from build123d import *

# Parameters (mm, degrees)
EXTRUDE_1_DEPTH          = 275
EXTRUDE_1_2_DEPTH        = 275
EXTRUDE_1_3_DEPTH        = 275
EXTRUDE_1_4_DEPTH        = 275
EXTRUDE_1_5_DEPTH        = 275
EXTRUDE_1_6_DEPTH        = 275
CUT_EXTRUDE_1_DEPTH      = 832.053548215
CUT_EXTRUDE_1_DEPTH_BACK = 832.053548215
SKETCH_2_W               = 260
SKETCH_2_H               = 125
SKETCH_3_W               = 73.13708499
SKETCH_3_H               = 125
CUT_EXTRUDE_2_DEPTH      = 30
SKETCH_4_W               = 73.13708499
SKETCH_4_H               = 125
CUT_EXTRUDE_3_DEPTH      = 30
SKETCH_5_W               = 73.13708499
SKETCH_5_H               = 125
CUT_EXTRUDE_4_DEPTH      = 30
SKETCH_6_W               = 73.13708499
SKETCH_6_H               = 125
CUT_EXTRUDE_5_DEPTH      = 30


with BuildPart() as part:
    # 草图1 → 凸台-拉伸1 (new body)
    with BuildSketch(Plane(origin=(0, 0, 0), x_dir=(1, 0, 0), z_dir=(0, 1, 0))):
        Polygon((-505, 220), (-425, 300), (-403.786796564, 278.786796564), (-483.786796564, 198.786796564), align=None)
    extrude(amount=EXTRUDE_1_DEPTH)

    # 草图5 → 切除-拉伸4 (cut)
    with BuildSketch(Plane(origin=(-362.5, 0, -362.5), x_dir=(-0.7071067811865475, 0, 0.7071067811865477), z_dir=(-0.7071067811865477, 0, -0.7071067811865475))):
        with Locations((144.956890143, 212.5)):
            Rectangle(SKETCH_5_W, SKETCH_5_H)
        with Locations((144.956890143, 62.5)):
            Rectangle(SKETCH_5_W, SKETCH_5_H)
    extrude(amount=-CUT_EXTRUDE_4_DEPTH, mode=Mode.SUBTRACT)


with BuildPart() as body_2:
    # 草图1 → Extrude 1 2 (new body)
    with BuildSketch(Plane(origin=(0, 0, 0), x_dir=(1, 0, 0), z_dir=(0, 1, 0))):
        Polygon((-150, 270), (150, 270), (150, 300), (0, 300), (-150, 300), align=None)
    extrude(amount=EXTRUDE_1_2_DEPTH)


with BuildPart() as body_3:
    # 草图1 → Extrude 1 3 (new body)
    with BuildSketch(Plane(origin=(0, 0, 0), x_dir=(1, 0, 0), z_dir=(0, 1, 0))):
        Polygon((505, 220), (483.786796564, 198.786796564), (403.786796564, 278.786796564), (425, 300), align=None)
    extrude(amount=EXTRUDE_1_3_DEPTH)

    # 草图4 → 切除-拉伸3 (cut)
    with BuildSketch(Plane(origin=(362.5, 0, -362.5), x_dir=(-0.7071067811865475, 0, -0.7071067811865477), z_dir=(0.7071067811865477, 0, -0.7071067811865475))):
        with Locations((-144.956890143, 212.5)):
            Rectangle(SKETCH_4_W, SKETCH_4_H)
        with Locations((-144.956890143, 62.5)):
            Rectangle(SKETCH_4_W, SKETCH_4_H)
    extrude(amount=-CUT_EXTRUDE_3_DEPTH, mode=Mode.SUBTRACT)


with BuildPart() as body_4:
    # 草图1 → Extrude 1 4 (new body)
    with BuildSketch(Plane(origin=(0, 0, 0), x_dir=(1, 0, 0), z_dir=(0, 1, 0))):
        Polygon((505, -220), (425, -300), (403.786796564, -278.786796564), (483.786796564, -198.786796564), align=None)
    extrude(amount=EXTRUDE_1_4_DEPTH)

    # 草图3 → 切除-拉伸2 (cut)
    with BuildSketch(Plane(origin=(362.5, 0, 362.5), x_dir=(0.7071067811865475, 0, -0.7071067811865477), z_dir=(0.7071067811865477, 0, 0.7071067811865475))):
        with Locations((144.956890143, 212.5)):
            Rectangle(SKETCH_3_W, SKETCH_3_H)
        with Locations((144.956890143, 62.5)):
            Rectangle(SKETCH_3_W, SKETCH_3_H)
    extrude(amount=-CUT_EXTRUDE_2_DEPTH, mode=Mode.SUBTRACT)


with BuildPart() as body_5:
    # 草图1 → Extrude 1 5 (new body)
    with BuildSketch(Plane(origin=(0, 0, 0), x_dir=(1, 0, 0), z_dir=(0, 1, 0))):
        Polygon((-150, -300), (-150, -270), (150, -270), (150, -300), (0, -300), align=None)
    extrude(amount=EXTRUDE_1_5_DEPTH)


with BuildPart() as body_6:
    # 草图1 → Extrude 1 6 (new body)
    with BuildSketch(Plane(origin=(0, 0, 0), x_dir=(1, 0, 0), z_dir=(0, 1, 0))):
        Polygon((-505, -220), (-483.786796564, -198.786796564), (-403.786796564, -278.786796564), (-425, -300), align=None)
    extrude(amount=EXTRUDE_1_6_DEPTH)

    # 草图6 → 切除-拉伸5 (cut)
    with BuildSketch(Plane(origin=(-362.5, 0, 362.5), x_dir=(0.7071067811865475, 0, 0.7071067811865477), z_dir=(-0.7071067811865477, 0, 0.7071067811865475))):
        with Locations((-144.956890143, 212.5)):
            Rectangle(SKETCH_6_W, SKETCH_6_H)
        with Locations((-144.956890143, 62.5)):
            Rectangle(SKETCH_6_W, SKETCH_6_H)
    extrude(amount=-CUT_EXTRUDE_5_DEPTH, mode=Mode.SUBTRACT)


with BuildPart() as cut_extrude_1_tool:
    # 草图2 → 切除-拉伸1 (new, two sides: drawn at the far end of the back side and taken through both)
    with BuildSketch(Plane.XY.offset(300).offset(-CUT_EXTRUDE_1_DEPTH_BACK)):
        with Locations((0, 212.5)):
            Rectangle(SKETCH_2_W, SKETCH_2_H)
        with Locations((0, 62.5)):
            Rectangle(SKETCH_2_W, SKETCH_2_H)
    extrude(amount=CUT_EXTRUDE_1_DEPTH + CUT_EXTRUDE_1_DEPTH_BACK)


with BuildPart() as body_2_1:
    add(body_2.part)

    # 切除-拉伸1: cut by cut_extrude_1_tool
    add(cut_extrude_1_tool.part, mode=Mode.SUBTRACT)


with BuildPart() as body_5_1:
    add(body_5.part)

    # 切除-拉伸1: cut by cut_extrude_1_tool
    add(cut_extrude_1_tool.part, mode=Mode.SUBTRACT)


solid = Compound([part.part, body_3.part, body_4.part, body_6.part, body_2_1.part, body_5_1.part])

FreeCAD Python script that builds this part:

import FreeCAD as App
import Part
import Sketcher

V = App.Vector
Q = App.Units.Quantity

doc = App.newDocument("Part")
params = doc.addObject("Spreadsheet::Sheet", "Params")
for row, (alias, value) in enumerate([
    ("sketch1_length", "30 mm"),
    ("pad1_length", "275 mm"),
    ("sketch2_height", "125 mm"),
    ("pocket1_length", "30 mm"),
    ("sketch3_width", "300 mm"),
    ("sketch3_height", "30 mm"),
    ("pad2_length", "275 mm"),
    ("sketch4_length", "30 mm"),
    ("pad3_length", "275 mm"),
    ("sketch5_height", "125 mm"),
    ("pocket2_length", "30 mm"),
    ("sketch6_length", "30 mm"),
    ("pad4_length", "275 mm"),
    ("sketch7_height", "125 mm"),
    ("pocket3_length", "30 mm"),
    ("sketch8_width", "300 mm"),
    ("sketch8_height", "30 mm"),
    ("pad5_length", "275 mm"),
    ("sketch9_length", "30 mm"),
    ("pad6_length", "275 mm"),
    ("sketch10_height", "125 mm"),
    ("pocket4_length", "30 mm"),
    ("sketch11_width", "260 mm"),
    ("sketch11_height", "125 mm"),
    ("pad7_length", "832.053548 mm"),
    ("pad7_length2", "832.053548 mm"),
], start=1):
    params.set(f"A{row}", alias)
    params.set(f"B{row}", "=" + value)
    params.setAlias(f"B{row}", alias)

body = doc.addObject("PartDesign::Body", "Body")

# Sketch on XZ plane
sketch1 = doc.addObject("Sketcher::SketchObject", "Sketch")
body.addObject(sketch1)
sketch1.AttachmentSupport = (doc.XZ_Plane, [""])
sketch1.MapMode = "FlatFace"
sketch1.addGeometry([
    Part.LineSegment(V(-425, -300, 0), V(-505, -220, 0)),
    Part.LineSegment(V(-505, -220, 0), V(-484, -199, 0)),
    Part.LineSegment(V(-484, -199, 0), V(-404, -279, 0)),
    Part.LineSegment(V(-404, -279, 0), V(-425, -300, 0)),
], False)
sketch1.addConstraint([
    Sketcher.Constraint("Coincident", 0, 2, 1, 1),
    Sketcher.Constraint("Coincident", 1, 2, 2, 1),
    Sketcher.Constraint("Coincident", 2, 2, 3, 1),
    Sketcher.Constraint("Coincident", 3, 2, 0, 1),
    Sketcher.Constraint("Perpendicular", 0, 1),
    Sketcher.Constraint("Perpendicular", 1, 2),
    Sketcher.Constraint("Perpendicular", 2, 3),
    Sketcher.Constraint("Angle", 0, Q("135 deg")),
    Sketcher.Constraint("Distance", 1, 30.0),
    Sketcher.Constraint("DistanceX", 0, 2, -1, 1, 505.0),
    Sketcher.Constraint("DistanceY", 0, 2, -1, 1, 220.0),
    Sketcher.Constraint("DistanceX", 3, 2, -1, 1, 425.0),
])
sketch1.setExpression("Constraints[8]", "Params.sketch1_length")
pad1 = doc.addObject("PartDesign::Pad", "Pad")
body.addObject(pad1)
pad1.Profile = sketch1
pad1.setExpression("Length", "Params.pad1_length")
pad1.Reversed = True

# Sketch on an angled plane
sketch2 = doc.addObject("Sketcher::SketchObject", "Sketch001")
body.addObject(sketch2)
sketch2.Placement = App.Placement(V(-362.5, 0, -362.5), App.Rotation(V(-0.707106781, 0, 0.707106781), V(0, 0.999999999, 0), V(-0.707106781, 0, -0.707106781), "ZXY"))
sketch2.addGeometry([
    Part.LineSegment(V(108, 275, 0), V(108, 150, 0)),  # 0
    Part.LineSegment(V(108, 150, 0), V(182, 150, 0)),  # 1
    Part.LineSegment(V(182, 150, 0), V(182, 275, 0)),  # 2
    Part.LineSegment(V(182, 275, 0), V(108, 275, 0)),  # 3
    Part.LineSegment(V(108, 125, 0), V(108, 0, 0)),  # 4
    Part.LineSegment(V(108, 0, 0), V(182, 0, 0)),  # 5
    Part.LineSegment(V(182, 0, 0), V(182, 125, 0)),  # 6
    Part.LineSegment(V(182, 125, 0), V(108, 125, 0)),  # 7
], False)
sketch2.addConstraint([
    Sketcher.Constraint("Coincident", 0, 2, 1, 1),
    Sketcher.Constraint("Coincident", 1, 2, 2, 1),
    Sketcher.Constraint("Coincident", 2, 2, 3, 1),
    Sketcher.Constraint("Coincident", 3, 2, 0, 1),
    Sketcher.Constraint("Coincident", 4, 2, 5, 1),
    Sketcher.Constraint("Coincident", 5, 2, 6, 1),
    Sketcher.Constraint("Coincident", 6, 2, 7, 1),
    Sketcher.Constraint("Coincident", 7, 2, 4, 1),
    Sketcher.Constraint("Vertical", 0),
    Sketcher.Constraint("Horizontal", 1),
    Sketcher.Constraint("Vertical", 2),
    Sketcher.Constraint("Horizontal", 3),
    Sketcher.Constraint("Vertical", 4),
    Sketcher.Constraint("Horizontal", 5),
    Sketcher.Constraint("Vertical", 6),
    Sketcher.Constraint("Horizontal", 7),
    Sketcher.Constraint("PointOnObject", 4, 2, -1),
    Sketcher.Constraint("Vertical", 3, 2, 4, 2),
    Sketcher.Constraint("Vertical", 2, 2, 5, 2),
    Sketcher.Constraint("Equal", 2, 4),
    Sketcher.Constraint("DistanceY", 0, 2, 0, 1, 125.0),
    Sketcher.Constraint("DistanceY", -1, 1, 0, 2, 150.0),
    Sketcher.Constraint("DistanceX", 1, 1, 1, 2, 73.137085),
    Sketcher.Constraint("DistanceX", -1, 1, 0, 2, 108.388348),
])
sketch2.setExpression("Constraints[20]", "Params.sketch2_height")
pocket1 = doc.addObject("PartDesign::Pocket", "Pocket")
body.addObject(pocket1)
pocket1.Profile = sketch2
pocket1.setExpression("Length", "Params.pocket1_length")
body2 = doc.addObject("PartDesign::Body", "Body001")

# Sketch on XZ plane
sketch3 = doc.addObject("Sketcher::SketchObject", "Sketch002")
body2.addObject(sketch3)
sketch3.AttachmentSupport = (doc.getObject("XZ_Plane001"), [""])
sketch3.MapMode = "FlatFace"
sketch3.addGeometry([
    Part.LineSegment(V(-150, -270, 0), V(150, -270, 0)),
    Part.LineSegment(V(150, -270, 0), V(150, -300, 0)),
    Part.LineSegment(V(150, -300, 0), V(-150, -300, 0)),
    Part.LineSegment(V(-150, -300, 0), V(-150, -270, 0)),
], False)
sketch3.addConstraint([
    Sketcher.Constraint("Coincident", 0, 2, 1, 1),
    Sketcher.Constraint("Coincident", 1, 2, 2, 1),
    Sketcher.Constraint("Coincident", 2, 2, 3, 1),
    Sketcher.Constraint("Coincident", 3, 2, 0, 1),
    Sketcher.Constraint("Horizontal", 0),
    Sketcher.Constraint("Vertical", 1),
    Sketcher.Constraint("Horizontal", 2),
    Sketcher.Constraint("Vertical", 3),
    Sketcher.Constraint("DistanceX", 0, 1, 0, 2, 300.0),
    Sketcher.Constraint("DistanceY", 1, 2, 1, 1, 30.0),
    Sketcher.Constraint("DistanceX", -1, 1, 0, 2, 150.0),
    Sketcher.Constraint("DistanceY", 0, 2, -1, 1, 270.0),
])
sketch3.setExpression("Constraints[8]", "Params.sketch3_width")
sketch3.setExpression("Constraints[9]", "Params.sketch3_height")
pad2 = doc.addObject("PartDesign::Pad", "Pad001")
body2.addObject(pad2)
pad2.Profile = sketch3
pad2.setExpression("Length", "Params.pad2_length")
pad2.Reversed = True
body3 = doc.addObject("PartDesign::Body", "Body002")

# Sketch on XZ plane
sketch4 = doc.addObject("Sketcher::SketchObject", "Sketch003")
body3.addObject(sketch4)
sketch4.AttachmentSupport = (doc.getObject("XZ_Plane002"), [""])
sketch4.MapMode = "FlatFace"
sketch4.addGeometry([
    Part.LineSegment(V(484, -199, 0), V(505, -220, 0)),
    Part.LineSegment(V(505, -220, 0), V(425, -300, 0)),
    Part.LineSegment(V(425, -300, 0), V(404, -279, 0)),
    Part.LineSegment(V(404, -279, 0), V(484, -199, 0)),
], False)
sketch4.addConstraint([
    Sketcher.Constraint("Coincident", 0, 2, 1, 1),
    Sketcher.Constraint("Coincident", 1, 2, 2, 1),
    Sketcher.Constraint("Coincident", 2, 2, 3, 1),
    Sketcher.Constraint("Coincident", 3, 2, 0, 1),
    Sketcher.Constraint("Perpendicular", 0, 1),
    Sketcher.Constraint("Perpendicular", 1, 2),
    Sketcher.Constraint("Perpendicular", 2, 3),
    Sketcher.Constraint("Angle", 0, Q("-45 deg")),
    Sketcher.Constraint("Distance", 0, 30.0),
    Sketcher.Constraint("DistanceX", -1, 1, 0, 2, 505.0),
    Sketcher.Constraint("DistanceY", 0, 2, -1, 1, 220.0),
    Sketcher.Constraint("DistanceX", -1, 1, 1, 2, 425.0),
])
sketch4.setExpression("Constraints[8]", "Params.sketch4_length")
pad3 = doc.addObject("PartDesign::Pad", "Pad002")
body3.addObject(pad3)
pad3.Profile = sketch4
pad3.setExpression("Length", "Params.pad3_length")
pad3.Reversed = True

# Sketch on an angled plane
sketch5 = doc.addObject("Sketcher::SketchObject", "Sketch004")
body3.addObject(sketch5)
sketch5.Placement = App.Placement(V(362.5, 0, -362.5), App.Rotation(V(-0.707106781, 0, -0.707106781), V(0, 0.999999999, 0), V(0.707106781, 0, -0.707106781), "ZXY"))
sketch5.addGeometry([
    Part.LineSegment(V(-182, 275, 0), V(-182, 150, 0)),  # 0
    Part.LineSegment(V(-182, 150, 0), V(-108, 150, 0)),  # 1
    Part.LineSegment(V(-108, 150, 0), V(-108, 275, 0)),  # 2
    Part.LineSegment(V(-108, 275, 0), V(-182, 275, 0)),  # 3
    Part.LineSegment(V(-182, 125, 0), V(-182, 0, 0)),  # 4
    Part.LineSegment(V(-182, 0, 0), V(-108, 0, 0)),  # 5
    Part.LineSegment(V(-108, 0, 0), V(-108, 125, 0)),  # 6
    Part.LineSegment(V(-108, 125, 0), V(-182, 125, 0)),  # 7
], False)
sketch5.addConstraint([
    Sketcher.Constraint("Coincident", 0, 2, 1, 1),
    Sketcher.Constraint("Coincident", 1, 2, 2, 1),
    Sketcher.Constraint("Coincident", 2, 2, 3, 1),
    Sketcher.Constraint("Coincident", 3, 2, 0, 1),
    Sketcher.Constraint("Coincident", 4, 2, 5, 1),
    Sketcher.Constraint("Coincident", 5, 2, 6, 1),
    Sketcher.Constraint("Coincident", 6, 2, 7, 1),
    Sketcher.Constraint("Coincident", 7, 2, 4, 1),
    Sketcher.Constraint("Vertical", 0),
    Sketcher.Constraint("Horizontal", 1),
    Sketcher.Constraint("Vertical", 2),
    Sketcher.Constraint("Horizontal", 3),
    Sketcher.Constraint("Vertical", 4),
    Sketcher.Constraint("Horizontal", 5),
    Sketcher.Constraint("Vertical", 6),
    Sketcher.Constraint("Horizontal", 7),
    Sketcher.Constraint("PointOnObject", 4, 2, -1),
    Sketcher.Constraint("Vertical", 3, 2, 4, 2),
    Sketcher.Constraint("Vertical", 2, 2, 5, 2),
    Sketcher.Constraint("Equal", 2, 4),
    Sketcher.Constraint("DistanceY", 0, 2, 0, 1, 125.0),
    Sketcher.Constraint("DistanceY", -1, 1, 0, 2, 150.0),
    Sketcher.Constraint("DistanceX", 1, 1, 1, 2, 73.137085),
    Sketcher.Constraint("DistanceX", 0, 2, -1, 1, 181.525433),
])
sketch5.setExpression("Constraints[20]", "Params.sketch5_height")
pocket2 = doc.addObject("PartDesign::Pocket", "Pocket001")
body3.addObject(pocket2)
pocket2.Profile = sketch5
pocket2.setExpression("Length", "Params.pocket2_length")
body4 = doc.addObject("PartDesign::Body", "Body003")

# Sketch on XZ plane
sketch6 = doc.addObject("Sketcher::SketchObject", "Sketch005")
body4.addObject(sketch6)
sketch6.AttachmentSupport = (doc.getObject("XZ_Plane003"), [""])
sketch6.MapMode = "FlatFace"
sketch6.addGeometry([
    Part.LineSegment(V(425, 300, 0), V(505, 220, 0)),
    Part.LineSegment(V(505, 220, 0), V(484, 199, 0)),
    Part.LineSegment(V(484, 199, 0), V(404, 279, 0)),
    Part.LineSegment(V(404, 279, 0), V(425, 300, 0)),
], False)
sketch6.addConstraint([
    Sketcher.Constraint("Coincident", 0, 2, 1, 1),
    Sketcher.Constraint("Coincident", 1, 2, 2, 1),
    Sketcher.Constraint("Coincident", 2, 2, 3, 1),
    Sketcher.Constraint("Coincident", 3, 2, 0, 1),
    Sketcher.Constraint("Perpendicular", 0, 1),
    Sketcher.Constraint("Perpendicular", 1, 2),
    Sketcher.Constraint("Perpendicular", 2, 3),
    Sketcher.Constraint("Angle", 0, Q("-45 deg")),
    Sketcher.Constraint("Distance", 1, 30.0),
    Sketcher.Constraint("DistanceX", -1, 1, 0, 2, 505.0),
    Sketcher.Constraint("DistanceY", -1, 1, 0, 2, 220.0),
    Sketcher.Constraint("DistanceX", -1, 1, 3, 2, 425.0),
])
sketch6.setExpression("Constraints[8]", "Params.sketch6_length")
pad4 = doc.addObject("PartDesign::Pad", "Pad003")
body4.addObject(pad4)
pad4.Profile = sketch6
pad4.setExpression("Length", "Params.pad4_length")
pad4.Reversed = True

# Sketch on an angled plane
sketch7 = doc.addObject("Sketcher::SketchObject", "Sketch006")
body4.addObject(sketch7)
sketch7.Placement = App.Placement(V(362.5, 0, 362.5), App.Rotation(V(0.707106781, 0, -0.707106781), V(0, 0.999999999, 0), V(0.707106781, 0, 0.707106781), "ZXY"))
sketch7.addGeometry([
    Part.LineSegment(V(108, 275, 0), V(108, 150, 0)),  # 0
    Part.LineSegment(V(108, 150, 0), V(182, 150, 0)),  # 1
    Part.LineSegment(V(182, 150, 0), V(182, 275, 0)),  # 2
    Part.LineSegment(V(182, 275, 0), V(108, 275, 0)),  # 3
    Part.LineSegment(V(108, 125, 0), V(108, 0, 0)),  # 4
    Part.LineSegment(V(108, 0, 0), V(182, 0, 0)),  # 5
    Part.LineSegment(V(182, 0, 0), V(182, 125, 0)),  # 6
    Part.LineSegment(V(182, 125, 0), V(108, 125, 0)),  # 7
], False)
sketch7.addConstraint([
    Sketcher.Constraint("Coincident", 0, 2, 1, 1),
    Sketcher.Constraint("Coincident", 1, 2, 2, 1),
    Sketcher.Constraint("Coincident", 2, 2, 3, 1),
    Sketcher.Constraint("Coincident", 3, 2, 0, 1),
    Sketcher.Constraint("Coincident", 4, 2, 5, 1),
    Sketcher.Constraint("Coincident", 5, 2, 6, 1),
    Sketcher.Constraint("Coincident", 6, 2, 7, 1),
    Sketcher.Constraint("Coincident", 7, 2, 4, 1),
    Sketcher.Constraint("Vertical", 0),
    Sketcher.Constraint("Horizontal", 1),
    Sketcher.Constraint("Vertical", 2),
    Sketcher.Constraint("Horizontal", 3),
    Sketcher.Constraint("Vertical", 4),
    Sketcher.Constraint("Horizontal", 5),
    Sketcher.Constraint("Vertical", 6),
    Sketcher.Constraint("Horizontal", 7),
    Sketcher.Constraint("PointOnObject", 4, 2, -1),
    Sketcher.Constraint("Vertical", 3, 2, 4, 2),
    Sketcher.Constraint("Vertical", 2, 2, 5, 2),
    Sketcher.Constraint("Equal", 2, 4),
    Sketcher.Constraint("DistanceY", 0, 2, 0, 1, 125.0),
    Sketcher.Constraint("DistanceY", -1, 1, 0, 2, 150.0),
    Sketcher.Constraint("DistanceX", 1, 1, 1, 2, 73.137085),
    Sketcher.Constraint("DistanceX", -1, 1, 0, 2, 108.388348),
])
sketch7.setExpression("Constraints[20]", "Params.sketch7_height")
pocket3 = doc.addObject("PartDesign::Pocket", "Pocket002")
body4.addObject(pocket3)
pocket3.Profile = sketch7
pocket3.setExpression("Length", "Params.pocket3_length")
body5 = doc.addObject("PartDesign::Body", "Body004")

# Sketch on XZ plane
sketch8 = doc.addObject("Sketcher::SketchObject", "Sketch007")
body5.addObject(sketch8)
sketch8.AttachmentSupport = (doc.getObject("XZ_Plane004"), [""])
sketch8.MapMode = "FlatFace"
sketch8.addGeometry([
    Part.LineSegment(V(-150, 270, 0), V(-150, 300, 0)),
    Part.LineSegment(V(-150, 300, 0), V(150, 300, 0)),
    Part.LineSegment(V(150, 300, 0), V(150, 270, 0)),
    Part.LineSegment(V(150, 270, 0), V(-150, 270, 0)),
], False)
sketch8.addConstraint([
    Sketcher.Constraint("Coincident", 0, 2, 1, 1),
    Sketcher.Constraint("Coincident", 1, 2, 2, 1),
    Sketcher.Constraint("Coincident", 2, 2, 3, 1),
    Sketcher.Constraint("Coincident", 3, 2, 0, 1),
    Sketcher.Constraint("Vertical", 0),
    Sketcher.Constraint("Horizontal", 1),
    Sketcher.Constraint("Vertical", 2),
    Sketcher.Constraint("Horizontal", 3),
    Sketcher.Constraint("DistanceX", 1, 1, 1, 2, 300.0),
    Sketcher.Constraint("DistanceY", 0, 1, 0, 2, 30.0),
    Sketcher.Constraint("DistanceX", 0, 2, -1, 1, 150.0),
    Sketcher.Constraint("DistanceY", -1, 1, 0, 2, 300.0),
])
sketch8.setExpression("Constraints[8]", "Params.sketch8_width")
sketch8.setExpression("Constraints[9]", "Params.sketch8_height")
pad5 = doc.addObject("PartDesign::Pad", "Pad004")
body5.addObject(pad5)
pad5.Profile = sketch8
pad5.setExpression("Length", "Params.pad5_length")
pad5.Reversed = True
body6 = doc.addObject("PartDesign::Body", "Body005")

# Sketch on XZ plane
sketch9 = doc.addObject("Sketcher::SketchObject", "Sketch008")
body6.addObject(sketch9)
sketch9.AttachmentSupport = (doc.getObject("XZ_Plane005"), [""])
sketch9.MapMode = "FlatFace"
sketch9.addGeometry([
    Part.LineSegment(V(-484, 199, 0), V(-505, 220, 0)),
    Part.LineSegment(V(-505, 220, 0), V(-425, 300, 0)),
    Part.LineSegment(V(-425, 300, 0), V(-404, 279, 0)),
    Part.LineSegment(V(-404, 279, 0), V(-484, 199, 0)),
], False)
sketch9.addConstraint([
    Sketcher.Constraint("Coincident", 0, 2, 1, 1),
    Sketcher.Constraint("Coincident", 1, 2, 2, 1),
    Sketcher.Constraint("Coincident", 2, 2, 3, 1),
    Sketcher.Constraint("Coincident", 3, 2, 0, 1),
    Sketcher.Constraint("Perpendicular", 0, 1),
    Sketcher.Constraint("Perpendicular", 1, 2),
    Sketcher.Constraint("Perpendicular", 2, 3),
    Sketcher.Constraint("Angle", 0, Q("135 deg")),
    Sketcher.Constraint("Distance", 0, 30.0),
    Sketcher.Constraint("DistanceX", 0, 2, -1, 1, 505.0),
    Sketcher.Constraint("DistanceY", -1, 1, 0, 2, 220.0),
    Sketcher.Constraint("DistanceX", 1, 2, -1, 1, 425.0),
])
sketch9.setExpression("Constraints[8]", "Params.sketch9_length")
pad6 = doc.addObject("PartDesign::Pad", "Pad005")
body6.addObject(pad6)
pad6.Profile = sketch9
pad6.setExpression("Length", "Params.pad6_length")
pad6.Reversed = True

# Sketch on an angled plane
sketch10 = doc.addObject("Sketcher::SketchObject", "Sketch009")
body6.addObject(sketch10)
sketch10.Placement = App.Placement(V(-362.5, 0, 362.5), App.Rotation(V(0.707106781, 0, 0.707106781), V(0, 0.999999999, 0), V(-0.707106781, 0, 0.707106781), "ZXY"))
sketch10.addGeometry([
    Part.LineSegment(V(-182, 275, 0), V(-182, 150, 0)),  # 0
    Part.LineSegment(V(-182, 150, 0), V(-108, 150, 0)),  # 1
    Part.LineSegment(V(-108, 150, 0), V(-108, 275, 0)),  # 2
    Part.LineSegment(V(-108, 275, 0), V(-182, 275, 0)),  # 3
    Part.LineSegment(V(-182, 125, 0), V(-182, 0, 0)),  # 4
    Part.LineSegment(V(-182, 0, 0), V(-108, 0, 0)),  # 5
    Part.LineSegment(V(-108, 0, 0), V(-108, 125, 0)),  # 6
    Part.LineSegment(V(-108, 125, 0), V(-182, 125, 0)),  # 7
], False)
sketch10.addConstraint([
    Sketcher.Constraint("Coincident", 0, 2, 1, 1),
    Sketcher.Constraint("Coincident", 1, 2, 2, 1),
    Sketcher.Constraint("Coincident", 2, 2, 3, 1),
    Sketcher.Constraint("Coincident", 3, 2, 0, 1),
    Sketcher.Constraint("Coincident", 4, 2, 5, 1),
    Sketcher.Constraint("Coincident", 5, 2, 6, 1),
    Sketcher.Constraint("Coincident", 6, 2, 7, 1),
    Sketcher.Constraint("Coincident", 7, 2, 4, 1),
    Sketcher.Constraint("Vertical", 0),
    Sketcher.Constraint("Horizontal", 1),
    Sketcher.Constraint("Vertical", 2),
    Sketcher.Constraint("Horizontal", 3),
    Sketcher.Constraint("Vertical", 4),
    Sketcher.Constraint("Horizontal", 5),
    Sketcher.Constraint("Vertical", 6),
    Sketcher.Constraint("Horizontal", 7),
    Sketcher.Constraint("PointOnObject", 4, 2, -1),
    Sketcher.Constraint("Vertical", 3, 2, 4, 2),
    Sketcher.Constraint("Vertical", 2, 2, 5, 2),
    Sketcher.Constraint("Equal", 2, 4),
    Sketcher.Constraint("DistanceY", 0, 2, 0, 1, 125.0),
    Sketcher.Constraint("DistanceY", -1, 1, 0, 2, 150.0),
    Sketcher.Constraint("DistanceX", 1, 1, 1, 2, 73.137085),
    Sketcher.Constraint("DistanceX", 0, 2, -1, 1, 181.525433),
])
sketch10.setExpression("Constraints[20]", "Params.sketch10_height")
pocket4 = doc.addObject("PartDesign::Pocket", "Pocket003")
body6.addObject(pocket4)
pocket4.Profile = sketch10
pocket4.setExpression("Length", "Params.pocket4_length")
body7 = doc.addObject("PartDesign::Body", "Body006")
body7.AllowCompound = True

# Sketch on XY plane
sketch11 = doc.addObject("Sketcher::SketchObject", "Sketch010")
body7.addObject(sketch11)
sketch11.AttachmentSupport = (doc.getObject("XY_Plane006"), [""])
sketch11.MapMode = "FlatFace"
sketch11.AttachmentOffset = App.Placement(V(0, 0, 300), App.Rotation())
sketch11.addGeometry([
    Part.LineSegment(V(-130, 275, 0), V(-130, 150, 0)),  # 0
    Part.LineSegment(V(-130, 150, 0), V(130, 150, 0)),  # 1
    Part.LineSegment(V(130, 150, 0), V(130, 275, 0)),  # 2
    Part.LineSegment(V(130, 275, 0), V(-130, 275, 0)),  # 3
    Part.LineSegment(V(-130, 125, 0), V(-130, 0, 0)),  # 4
    Part.LineSegment(V(-130, 0, 0), V(130, 0, 0)),  # 5
    Part.LineSegment(V(130, 0, 0), V(130, 125, 0)),  # 6
    Part.LineSegment(V(130, 125, 0), V(-130, 125, 0)),  # 7
], False)
sketch11.addConstraint([
    Sketcher.Constraint("Coincident", 0, 2, 1, 1),
    Sketcher.Constraint("Coincident", 1, 2, 2, 1),
    Sketcher.Constraint("Coincident", 2, 2, 3, 1),
    Sketcher.Constraint("Coincident", 3, 2, 0, 1),
    Sketcher.Constraint("Coincident", 4, 2, 5, 1),
    Sketcher.Constraint("Coincident", 5, 2, 6, 1),
    Sketcher.Constraint("Coincident", 6, 2, 7, 1),
    Sketcher.Constraint("Coincident", 7, 2, 4, 1),
    Sketcher.Constraint("Vertical", 0),
    Sketcher.Constraint("Horizontal", 1),
    Sketcher.Constraint("Vertical", 2),
    Sketcher.Constraint("Horizontal", 3),
    Sketcher.Constraint("Vertical", 4),
    Sketcher.Constraint("Horizontal", 5),
    Sketcher.Constraint("Vertical", 6),
    Sketcher.Constraint("Horizontal", 7),
    Sketcher.Constraint("Symmetric", 4, 2, 5, 2, -1, 1),
    Sketcher.Constraint("Vertical", 3, 2, 4, 2),
    Sketcher.Constraint("Vertical", 2, 2, 5, 2),
    Sketcher.Constraint("Equal", 2, 4),
    Sketcher.Constraint("DistanceX", 1, 1, 1, 2, 260.0),
    Sketcher.Constraint("DistanceY", 0, 2, 0, 1, 125.0),
    Sketcher.Constraint("DistanceY", -1, 1, 0, 2, 150.0),
])
sketch11.setExpression("Constraints[20]", "Params.sketch11_width")
sketch11.setExpression("Constraints[21]", "Params.sketch11_height")
pad7 = doc.addObject("PartDesign::Pad", "Pad006")
body7.addObject(pad7)
pad7.Profile = sketch11
pad7.Type = "TwoLengths"
pad7.setExpression("Length", "Params.pad7_length")
pad7.setExpression("Length2", "Params.pad7_length2")
doc.recompute()

body8 = doc.addObject("PartDesign::Body", "Body007")
body8.BaseFeature = body7
boolean = doc.addObject("PartDesign::Boolean", "Boolean")
body2.addObject(boolean)
boolean.Type = "Cut"
boolean.addObjects([body8])
doc.recompute()

boolean2 = doc.addObject("PartDesign::Boolean", "Boolean001")
body5.addObject(boolean2)
boolean2.Type = "Cut"
boolean2.addObjects([body7])

doc.recompute()
